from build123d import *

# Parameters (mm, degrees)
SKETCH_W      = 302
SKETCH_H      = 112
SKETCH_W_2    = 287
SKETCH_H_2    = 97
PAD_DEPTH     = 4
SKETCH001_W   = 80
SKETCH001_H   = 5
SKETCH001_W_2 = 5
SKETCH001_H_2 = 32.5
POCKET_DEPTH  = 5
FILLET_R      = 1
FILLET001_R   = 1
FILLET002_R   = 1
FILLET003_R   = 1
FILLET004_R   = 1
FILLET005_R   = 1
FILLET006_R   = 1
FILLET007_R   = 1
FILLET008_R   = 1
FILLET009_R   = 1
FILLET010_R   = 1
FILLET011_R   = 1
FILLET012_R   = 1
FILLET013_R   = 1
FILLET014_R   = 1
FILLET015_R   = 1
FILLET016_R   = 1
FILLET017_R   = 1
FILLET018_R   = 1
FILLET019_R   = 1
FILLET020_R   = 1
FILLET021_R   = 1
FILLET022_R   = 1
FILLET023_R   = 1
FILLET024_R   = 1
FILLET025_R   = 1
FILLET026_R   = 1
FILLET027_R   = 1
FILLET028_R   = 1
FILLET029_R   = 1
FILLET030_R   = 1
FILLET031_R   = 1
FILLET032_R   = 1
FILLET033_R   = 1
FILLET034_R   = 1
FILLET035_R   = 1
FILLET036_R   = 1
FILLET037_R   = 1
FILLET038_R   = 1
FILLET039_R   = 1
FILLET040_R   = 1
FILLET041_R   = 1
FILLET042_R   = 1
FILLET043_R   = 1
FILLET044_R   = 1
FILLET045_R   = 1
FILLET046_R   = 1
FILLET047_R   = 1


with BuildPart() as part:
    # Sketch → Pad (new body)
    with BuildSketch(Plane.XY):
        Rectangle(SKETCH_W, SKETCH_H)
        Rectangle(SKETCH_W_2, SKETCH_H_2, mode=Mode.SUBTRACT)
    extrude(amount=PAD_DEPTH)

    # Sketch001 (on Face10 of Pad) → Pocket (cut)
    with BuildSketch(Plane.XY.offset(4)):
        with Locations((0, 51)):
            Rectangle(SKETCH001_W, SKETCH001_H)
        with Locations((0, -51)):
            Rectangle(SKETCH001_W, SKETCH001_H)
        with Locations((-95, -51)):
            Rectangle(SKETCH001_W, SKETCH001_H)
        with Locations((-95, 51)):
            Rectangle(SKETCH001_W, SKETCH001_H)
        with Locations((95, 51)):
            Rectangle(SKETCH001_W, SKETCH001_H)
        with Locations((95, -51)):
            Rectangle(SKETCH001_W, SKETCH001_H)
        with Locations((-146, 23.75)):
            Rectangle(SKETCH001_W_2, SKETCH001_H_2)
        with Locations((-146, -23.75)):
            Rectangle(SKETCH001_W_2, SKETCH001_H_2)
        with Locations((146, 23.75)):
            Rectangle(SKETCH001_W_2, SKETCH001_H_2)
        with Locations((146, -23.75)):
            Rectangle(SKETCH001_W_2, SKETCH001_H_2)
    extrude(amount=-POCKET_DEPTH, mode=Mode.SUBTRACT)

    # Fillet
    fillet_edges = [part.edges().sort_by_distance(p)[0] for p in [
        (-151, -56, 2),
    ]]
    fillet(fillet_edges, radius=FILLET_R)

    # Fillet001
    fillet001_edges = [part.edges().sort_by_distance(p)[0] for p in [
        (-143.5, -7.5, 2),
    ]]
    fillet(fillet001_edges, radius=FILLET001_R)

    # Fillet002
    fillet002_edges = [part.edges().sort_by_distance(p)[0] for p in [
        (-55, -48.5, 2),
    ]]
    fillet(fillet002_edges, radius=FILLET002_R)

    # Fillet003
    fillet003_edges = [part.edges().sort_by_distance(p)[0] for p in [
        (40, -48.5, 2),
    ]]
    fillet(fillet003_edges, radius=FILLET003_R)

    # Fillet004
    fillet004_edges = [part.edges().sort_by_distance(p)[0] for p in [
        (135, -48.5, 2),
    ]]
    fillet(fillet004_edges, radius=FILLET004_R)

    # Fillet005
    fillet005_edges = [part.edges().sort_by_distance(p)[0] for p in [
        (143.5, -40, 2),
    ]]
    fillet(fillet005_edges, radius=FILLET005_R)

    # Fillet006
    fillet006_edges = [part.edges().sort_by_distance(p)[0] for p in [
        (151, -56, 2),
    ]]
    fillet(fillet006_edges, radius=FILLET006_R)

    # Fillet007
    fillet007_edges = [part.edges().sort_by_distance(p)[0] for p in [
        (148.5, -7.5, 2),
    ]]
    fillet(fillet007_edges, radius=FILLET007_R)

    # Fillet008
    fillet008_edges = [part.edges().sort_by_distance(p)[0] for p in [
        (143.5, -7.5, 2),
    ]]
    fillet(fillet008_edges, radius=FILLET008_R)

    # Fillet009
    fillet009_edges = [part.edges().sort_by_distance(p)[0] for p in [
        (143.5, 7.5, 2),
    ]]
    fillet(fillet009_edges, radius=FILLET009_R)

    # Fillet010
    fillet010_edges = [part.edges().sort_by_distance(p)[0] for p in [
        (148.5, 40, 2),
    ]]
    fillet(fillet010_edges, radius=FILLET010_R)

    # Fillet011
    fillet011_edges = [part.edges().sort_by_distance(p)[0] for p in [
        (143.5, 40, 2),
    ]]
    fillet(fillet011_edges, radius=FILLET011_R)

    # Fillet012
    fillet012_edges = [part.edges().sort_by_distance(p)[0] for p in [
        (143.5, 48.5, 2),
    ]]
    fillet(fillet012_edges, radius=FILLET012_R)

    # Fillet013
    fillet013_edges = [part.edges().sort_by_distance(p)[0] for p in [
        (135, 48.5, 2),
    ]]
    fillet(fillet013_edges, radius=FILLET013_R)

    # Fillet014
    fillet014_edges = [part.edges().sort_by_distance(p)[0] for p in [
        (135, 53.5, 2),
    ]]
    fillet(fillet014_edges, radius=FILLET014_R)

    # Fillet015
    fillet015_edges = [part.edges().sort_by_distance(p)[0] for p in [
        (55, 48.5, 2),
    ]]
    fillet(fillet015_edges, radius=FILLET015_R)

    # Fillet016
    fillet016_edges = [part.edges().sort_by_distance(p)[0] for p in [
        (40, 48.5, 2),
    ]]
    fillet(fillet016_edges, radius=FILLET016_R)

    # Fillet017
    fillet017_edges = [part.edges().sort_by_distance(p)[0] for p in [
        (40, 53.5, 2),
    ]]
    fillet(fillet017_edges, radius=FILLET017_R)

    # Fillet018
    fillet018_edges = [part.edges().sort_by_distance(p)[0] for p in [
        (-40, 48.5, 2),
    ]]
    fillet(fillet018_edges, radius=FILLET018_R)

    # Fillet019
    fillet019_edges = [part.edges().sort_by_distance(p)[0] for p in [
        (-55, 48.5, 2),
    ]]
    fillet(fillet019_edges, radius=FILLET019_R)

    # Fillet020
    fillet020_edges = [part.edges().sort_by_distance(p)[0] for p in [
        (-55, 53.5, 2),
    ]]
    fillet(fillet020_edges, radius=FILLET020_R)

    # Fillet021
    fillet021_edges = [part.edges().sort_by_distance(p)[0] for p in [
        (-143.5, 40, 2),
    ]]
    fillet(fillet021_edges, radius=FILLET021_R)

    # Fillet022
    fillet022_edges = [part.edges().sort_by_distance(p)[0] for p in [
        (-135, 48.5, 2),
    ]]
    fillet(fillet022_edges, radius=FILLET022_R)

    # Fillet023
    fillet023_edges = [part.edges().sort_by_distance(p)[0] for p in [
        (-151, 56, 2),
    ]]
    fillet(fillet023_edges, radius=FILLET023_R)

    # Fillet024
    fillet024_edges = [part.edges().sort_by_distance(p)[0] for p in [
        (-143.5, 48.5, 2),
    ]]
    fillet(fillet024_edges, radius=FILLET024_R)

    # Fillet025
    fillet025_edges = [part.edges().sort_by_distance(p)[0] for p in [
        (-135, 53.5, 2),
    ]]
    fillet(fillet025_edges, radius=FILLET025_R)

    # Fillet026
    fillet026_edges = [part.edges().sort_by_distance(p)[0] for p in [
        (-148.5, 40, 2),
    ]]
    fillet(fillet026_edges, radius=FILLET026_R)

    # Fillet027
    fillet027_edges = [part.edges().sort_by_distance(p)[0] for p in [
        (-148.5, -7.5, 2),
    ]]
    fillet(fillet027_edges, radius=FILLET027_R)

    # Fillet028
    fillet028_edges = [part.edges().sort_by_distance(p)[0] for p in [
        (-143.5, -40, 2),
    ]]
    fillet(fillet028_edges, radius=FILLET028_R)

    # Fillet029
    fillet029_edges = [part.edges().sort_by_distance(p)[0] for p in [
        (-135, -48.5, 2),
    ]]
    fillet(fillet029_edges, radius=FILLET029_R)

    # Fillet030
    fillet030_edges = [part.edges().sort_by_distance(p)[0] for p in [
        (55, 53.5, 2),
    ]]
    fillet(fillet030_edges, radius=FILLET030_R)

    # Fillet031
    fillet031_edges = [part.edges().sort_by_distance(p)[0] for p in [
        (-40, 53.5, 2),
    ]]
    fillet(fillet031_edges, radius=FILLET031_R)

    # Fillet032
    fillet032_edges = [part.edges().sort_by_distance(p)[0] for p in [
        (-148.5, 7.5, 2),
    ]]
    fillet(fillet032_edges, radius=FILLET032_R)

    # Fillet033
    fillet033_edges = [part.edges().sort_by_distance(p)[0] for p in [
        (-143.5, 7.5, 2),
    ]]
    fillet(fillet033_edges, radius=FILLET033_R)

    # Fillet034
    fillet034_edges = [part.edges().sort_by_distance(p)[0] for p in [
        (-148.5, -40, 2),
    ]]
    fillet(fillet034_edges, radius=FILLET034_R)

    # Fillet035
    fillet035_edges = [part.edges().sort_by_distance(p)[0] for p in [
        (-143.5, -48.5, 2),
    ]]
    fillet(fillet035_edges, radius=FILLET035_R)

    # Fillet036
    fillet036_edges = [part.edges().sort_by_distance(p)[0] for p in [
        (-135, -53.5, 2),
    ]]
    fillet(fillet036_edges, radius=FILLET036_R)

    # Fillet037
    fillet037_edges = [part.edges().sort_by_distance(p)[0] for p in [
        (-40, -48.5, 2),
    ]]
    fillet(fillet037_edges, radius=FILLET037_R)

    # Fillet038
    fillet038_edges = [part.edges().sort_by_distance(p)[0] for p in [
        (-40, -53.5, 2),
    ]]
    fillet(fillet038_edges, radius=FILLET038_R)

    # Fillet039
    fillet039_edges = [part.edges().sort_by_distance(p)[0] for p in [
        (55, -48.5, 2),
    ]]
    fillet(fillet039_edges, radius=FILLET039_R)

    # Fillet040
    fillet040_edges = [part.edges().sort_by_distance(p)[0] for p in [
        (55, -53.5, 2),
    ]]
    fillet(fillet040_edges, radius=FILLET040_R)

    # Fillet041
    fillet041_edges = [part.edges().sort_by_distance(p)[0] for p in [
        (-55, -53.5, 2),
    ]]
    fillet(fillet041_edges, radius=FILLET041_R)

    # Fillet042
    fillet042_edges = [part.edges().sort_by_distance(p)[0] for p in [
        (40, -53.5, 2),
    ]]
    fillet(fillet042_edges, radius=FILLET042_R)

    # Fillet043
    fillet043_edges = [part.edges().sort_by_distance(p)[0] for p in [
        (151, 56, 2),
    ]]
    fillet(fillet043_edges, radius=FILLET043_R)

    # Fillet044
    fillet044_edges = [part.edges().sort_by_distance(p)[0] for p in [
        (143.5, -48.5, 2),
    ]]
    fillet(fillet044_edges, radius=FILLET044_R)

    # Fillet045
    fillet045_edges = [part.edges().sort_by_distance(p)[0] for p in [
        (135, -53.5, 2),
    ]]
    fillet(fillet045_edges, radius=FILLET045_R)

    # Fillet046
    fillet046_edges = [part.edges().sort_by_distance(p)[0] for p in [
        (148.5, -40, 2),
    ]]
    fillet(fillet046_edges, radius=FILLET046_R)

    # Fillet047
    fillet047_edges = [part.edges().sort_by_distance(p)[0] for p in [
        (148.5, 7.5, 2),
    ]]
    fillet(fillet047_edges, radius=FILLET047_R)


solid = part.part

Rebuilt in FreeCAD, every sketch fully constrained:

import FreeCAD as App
import Part
import Sketcher

V = App.Vector
Q = App.Units.Quantity


def edges_at(feature, points):
    """Names of the edges that pass closest to the given points."""
    edges = feature.Shape.Edges
    near = lambda p: min(range(len(edges)), key=lambda i: edges[i].distToShape(Part.Vertex(*p))[0])
    return sorted({f"Edge{near(p) + 1}" for p in points})


def add_polygon(sketch, points):
    """Adds a closed chain of lines whose ends are joined by coincident constraints."""
    first, n = sketch.GeometryCount, len(points)
    for a, b in zip(points, points[1:] + points[:1]):
        sketch.addGeometry(Part.LineSegment(App.Vector(*a, 0), App.Vector(*b, 0)), False)
    for i in range(n):
        sketch.addConstraint(Sketcher.Constraint("Coincident", first + i, 2, first + (i + 1) % n, 1))

doc = App.newDocument("Part")
body = doc.addObject("PartDesign::Body", "Body")

# Sketch on XY plane
sketch1 = doc.addObject("Sketcher::SketchObject", "Sketch")
body.addObject(sketch1)
sketch1.AttachmentSupport = (doc.XY_Plane, [""])
sketch1.MapMode = "FlatFace"
add_polygon(sketch1, [(-151, 56), (-151, -56), (151, -56), (151, 56)])  # lines 0-3
add_polygon(sketch1, [(144, -48), (-144, -48), (-144, 48), (144, 48)])  # lines 4-7
sketch1.addConstraint([
    Sketcher.Constraint("Vertical", 0),
    Sketcher.Constraint("Horizontal", 1),
    Sketcher.Constraint("Vertical", 2),
    Sketcher.Constraint("Horizontal", 3),
    Sketcher.Constraint("Horizontal", 4),
    Sketcher.Constraint("Vertical", 5),
    Sketcher.Constraint("Horizontal", 6),
    Sketcher.Constraint("Vertical", 7),
    Sketcher.Constraint("Symmetric", 0, 2, 2, 2, -1, 1),
    Sketcher.Constraint("Symmetric", 4, 2, 6, 2, -1, 1),
    Sketcher.Constraint("DistanceX", 1, 1, 1, 2, Q("302 mm")),
    Sketcher.Constraint("DistanceX", 4, 2, 4, 1, Q("287 mm")),
    Sketcher.Constraint("DistanceY", 0, 2, 0, 1, Q("112 mm")),
    Sketcher.Constraint("DistanceY", 5, 1, 5, 2, Q("97 mm")),
])
pad1 = doc.addObject("PartDesign::Pad", "Pad")
body.addObject(pad1)
pad1.Profile = sketch1
pad1.Length = 4

# Sketch on XY plane
sketch2 = doc.addObject("Sketcher::SketchObject", "Sketch001")
body.addObject(sketch2)
sketch2.AttachmentSupport = (doc.XY_Plane, [""])
sketch2.MapMode = "FlatFace"
sketch2.AttachmentOffset = App.Placement(V(0, 0, 4), App.Rotation())
add_polygon(sketch2, [(-40, 54), (-40, 48), (40, 48), (40, 54)])  # lines 0-3
add_polygon(sketch2, [(-40, -48), (-40, -54), (40, -54), (40, -48)])  # lines 4-7
add_polygon(sketch2, [(-135, -48), (-135, -54), (-55, -54), (-55, -48)])  # lines 8-11
add_polygon(sketch2, [(-135, 54), (-135, 48), (-55, 48), (-55, 54)])  # lines 12-15
add_polygon(sketch2, [(55, 54), (55, 48), (135, 48), (135, 54)])  # lines 16-19
add_polygon(sketch2, [(55, -48), (55, -54), (135, -54), (135, -48)])  # lines 20-23
add_polygon(sketch2, [(-148, 40), (-148, 8), (-144, 8), (-144, 40)])  # lines 24-27
add_polygon(sketch2, [(-148, -8), (-148, -40), (-144, -40), (-144, -8)])  # lines 28-31
add_polygon(sketch2, [(144, 40), (144, 8), (148, 8), (148, 40)])  # lines 32-35
add_polygon(sketch2, [(144, -8), (144, -40), (148, -40), (148, -8)])  # lines 36-39
sketch2.addConstraint([
    Sketcher.Constraint("Vertical", 0),
    Sketcher.Constraint("Horizontal", 1),
    Sketcher.Constraint("Vertical", 2),
    Sketcher.Constraint("Horizontal", 3),
    Sketcher.Constraint("Vertical", 4),
    Sketcher.Constraint("Horizontal", 5),
    Sketcher.Constraint("Vertical", 6),
    Sketcher.Constraint("Horizontal", 7),
    Sketcher.Constraint("Vertical", 8),
    Sketcher.Constraint("Horizontal", 9),
    Sketcher.Constraint("Vertical", 10),
    Sketcher.Constraint("Horizontal", 11),
    Sketcher.Constraint("Vertical", 12),
    Sketcher.Constraint("Horizontal", 13),
    Sketcher.Constraint("Vertical", 14),
    Sketcher.Constraint("Horizontal", 15),
    Sketcher.Constraint("Vertical", 16),
    Sketcher.Constraint("Horizontal", 17),
    Sketcher.Constraint("Vertical", 18),
    Sketcher.Constraint("Horizontal", 19),
    Sketcher.Constraint("Vertical", 20),
    Sketcher.Constraint("Horizontal", 21),
    Sketcher.Constraint("Vertical", 22),
    Sketcher.Constraint("Horizontal", 23),
    Sketcher.Constraint("Vertical", 24),
    Sketcher.Constraint("Horizontal", 25),
    Sketcher.Constraint("Vertical", 26),
    Sketcher.Constraint("Horizontal", 27),
    Sketcher.Constraint("Vertical", 28),
    Sketcher.Constraint("Horizontal", 29),
    Sketcher.Constraint("Vertical", 30),
    Sketcher.Constraint("Horizontal", 31),
    Sketcher.Constraint("Vertical", 32),
    Sketcher.Constraint("Horizontal", 33),
    Sketcher.Constraint("Vertical", 34),
    Sketcher.Constraint("Horizontal", 35),
    Sketcher.Constraint("Vertical", 36),
    Sketcher.Constraint("Horizontal", 37),
    Sketcher.Constraint("Vertical", 38),
    Sketcher.Constraint("Horizontal", 39),
    Sketcher.Constraint("Symmetric", 2, 2, 4, 2, -1, 1),
    Sketcher.Constraint("Symmetric", 0, 2, 6, 2, -1, 1),
    Sketcher.Constraint("Symmetric", 10, 2, 16, 2, -1, 1),
    Sketcher.Constraint("Symmetric", 8, 2, 18, 2, -1, 1),
    Sketcher.Constraint("Symmetric", 14, 2, 20, 2, -1, 1),
    Sketcher.Constraint("Symmetric", 12, 2, 22, 2, -1, 1),
    Sketcher.Constraint("Symmetric", 30, 2, 32, 2, -1, 1),
    Sketcher.Constraint("Symmetric", 28, 2, 34, 2, -1, 1),
    Sketcher.Constraint("Symmetric", 26, 2, 36, 2, -1, 1),
    Sketcher.Constraint("Symmetric", 24, 2, 38, 2, -1, 1),
    Sketcher.Constraint("Symmetric", 13, 2, 16, 2, -2),
    Sketcher.Constraint("Symmetric", 15, 2, 18, 2, -2),
    Sketcher.Constraint("Symmetric", 25, 2, 32, 2, -2),
    Sketcher.Constraint("Symmetric", 27, 2, 34, 2, -2),
    Sketcher.Constraint("Horizontal", 5, 2, 8, 2),
    Sketcher.Constraint("Horizontal", 7, 2, 10, 2),
    Sketcher.Constraint("Vertical", 3, 2, 4, 2),
    Sketcher.Constraint("Equal", 7, 9),
    Sketcher.Constraint("Equal", 39, 0),
    Sketcher.Constraint("DistanceX", 1, 1, 1, 2, Q("80 mm")),
    Sketcher.Constraint("DistanceX", 25, 1, 25, 2, Q("5 mm")),
    Sketcher.Constraint("DistanceY", 24, 2, 24, 1, Q("32.5 mm")),
    Sketcher.Constraint("DistanceX", 8, 2, -1, 1, Q("135 mm")),
    Sketcher.Constraint("DistanceY", -1, 1, 26, 2, Q("40 mm")),
    Sketcher.Constraint("DistanceY", 4, 2, 0, 2, Q("102 mm")),
    Sketcher.Constraint("DistanceX", 24, 2, -1, 1, Q("148.5 mm")),
])
pocket1 = doc.addObject("PartDesign::Pocket", "Pocket")
body.addObject(pocket1)
pocket1.Profile = sketch2
pocket1.Length = 5
doc.recompute()

fillet = doc.addObject("PartDesign::Fillet", "Fillet")
body.addObject(fillet)
fillet.Base = (pocket1, edges_at(pocket1, [(-151, -56, 2)]))
fillet.Radius = 1
doc.recompute()

fillet2 = doc.addObject("PartDesign::Fillet", "Fillet001")
body.addObject(fillet2)
fillet2.Base = (fillet, edges_at(fillet, [(-143.5, -7.5, 2)]))
fillet2.Radius = 1
doc.recompute()

fillet3 = doc.addObject("PartDesign::Fillet", "Fillet002")
body.addObject(fillet3)
fillet3.Base = (fillet2, edges_at(fillet2, [(-55, -48.5, 2)]))
fillet3.Radius = 1
doc.recompute()

fillet4 = doc.addObject("PartDesign::Fillet", "Fillet003")
body.addObject(fillet4)
fillet4.Base = (fillet3, edges_at(fillet3, [(40, -48.5, 2)]))
fillet4.Radius = 1
doc.recompute()

fillet5 = doc.addObject("PartDesign::Fillet", "Fillet004")
body.addObject(fillet5)
fillet5.Base = (fillet4, edges_at(fillet4, [(135, -48.5, 2)]))
fillet5.Radius = 1
doc.recompute()

fillet6 = doc.addObject("PartDesign::Fillet", "Fillet005")
body.addObject(fillet6)
fillet6.Base = (fillet5, edges_at(fillet5, [(143.5, -40, 2)]))
fillet6.Radius = 1
doc.recompute()

fillet7 = doc.addObject("PartDesign::Fillet", "Fillet006")
body.addObject(fillet7)
fillet7.Base = (fillet6, edges_at(fillet6, [(151, -56, 2)]))
fillet7.Radius = 1
doc.recompute()

fillet8 = doc.addObject("PartDesign::Fillet", "Fillet007")
body.addObject(fillet8)
fillet8.Base = (fillet7, edges_at(fillet7, [(148.5, -7.5, 2)]))
fillet8.Radius = 1
doc.recompute()

fillet9 = doc.addObject("PartDesign::Fillet", "Fillet008")
body.addObject(fillet9)
fillet9.Base = (fillet8, edges_at(fillet8, [(143.5, -7.5, 2)]))
fillet9.Radius = 1
doc.recompute()

fillet10 = doc.addObject("PartDesign::Fillet", "Fillet009")
body.addObject(fillet10)
fillet10.Base = (fillet9, edges_at(fillet9, [(143.5, 7.5, 2)]))
fillet10.Radius = 1
doc.recompute()

fillet11 = doc.addObject("PartDesign::Fillet", "Fillet010")
body.addObject(fillet11)
fillet11.Base = (fillet10, edges_at(fillet10, [(148.5, 40, 2)]))
fillet11.Radius = 1
doc.recompute()

fillet12 = doc.addObject("PartDesign::Fillet", "Fillet011")
body.addObject(fillet12)
fillet12.Base = (fillet11, edges_at(fillet11, [(143.5, 40, 2)]))
fillet12.Radius = 1
doc.recompute()

fillet13 = doc.addObject("PartDesign::Fillet", "Fillet012")
body.addObject(fillet13)
fillet13.Base = (fillet12, edges_at(fillet12, [(143.5, 48.5, 2)]))
fillet13.Radius = 1
doc.recompute()

fillet14 = doc.addObject("PartDesign::Fillet", "Fillet013")
body.addObject(fillet14)
fillet14.Base = (fillet13, edges_at(fillet13, [(135, 48.5, 2)]))
fillet14.Radius = 1
doc.recompute()

fillet15 = doc.addObject("PartDesign::Fillet", "Fillet014")
body.addObject(fillet15)
fillet15.Base = (fillet14, edges_at(fillet14, [(135, 53.5, 2)]))
fillet15.Radius = 1
doc.recompute()

fillet16 = doc.addObject("PartDesign::Fillet", "Fillet015")
body.addObject(fillet16)
fillet16.Base = (fillet15, edges_at(fillet15, [(55, 48.5, 2)]))
fillet16.Radius = 1
doc.recompute()

fillet17 = doc.addObject("PartDesign::Fillet", "Fillet016")
body.addObject(fillet17)
fillet17.Base = (fillet16, edges_at(fillet16, [(40, 48.5, 2)]))
fillet17.Radius = 1
doc.recompute()

fillet18 = doc.addObject("PartDesign::Fillet", "Fillet017")
body.addObject(fillet18)
fillet18.Base = (fillet17, edges_at(fillet17, [(40, 53.5, 2)]))
fillet18.Radius = 1
doc.recompute()

fillet19 = doc.addObject("PartDesign::Fillet", "Fillet018")
body.addObject(fillet19)
fillet19.Base = (fillet18, edges_at(fillet18, [(-40, 48.5, 2)]))
fillet19.Radius = 1
doc.recompute()

fillet20 = doc.addObject("PartDesign::Fillet", "Fillet019")
body.addObject(fillet20)
fillet20.Base = (fillet19, edges_at(fillet19, [(-55, 48.5, 2)]))
fillet20.Radius = 1
doc.recompute()

fillet21 = doc.addObject("PartDesign::Fillet", "Fillet020")
body.addObject(fillet21)
fillet21.Base = (fillet20, edges_at(fillet20, [(-55, 53.5, 2)]))
fillet21.Radius = 1
doc.recompute()

fillet22 = doc.addObject("PartDesign::Fillet", "Fillet021")
body.addObject(fillet22)
fillet22.Base = (fillet21, edges_at(fillet21, [(-143.5, 40, 2)]))
fillet22.Radius = 1
doc.recompute()

fillet23 = doc.addObject("PartDesign::Fillet", "Fillet022")
body.addObject(fillet23)
fillet23.Base = (fillet22, edges_at(fillet22, [(-135, 48.5, 2)]))
fillet23.Radius = 1
doc.recompute()

fillet24 = doc.addObject("PartDesign::Fillet", "Fillet023")
body.addObject(fillet24)
fillet24.Base = (fillet23, edges_at(fillet23, [(-151, 56, 2)]))
fillet24.Radius = 1
doc.recompute()

fillet25 = doc.addObject("PartDesign::Fillet", "Fillet024")
body.addObject(fillet25)
fillet25.Base = (fillet24, edges_at(fillet24, [(-143.5, 48.5, 2)]))
fillet25.Radius = 1
doc.recompute()

fillet26 = doc.addObject("PartDesign::Fillet", "Fillet025")
body.addObject(fillet26)
fillet26.Base = (fillet25, edges_at(fillet25, [(-135, 53.5, 2)]))
fillet26.Radius = 1
doc.recompute()

fillet27 = doc.addObject("PartDesign::Fillet", "Fillet026")
body.addObject(fillet27)
fillet27.Base = (fillet26, edges_at(fillet26, [(-148.5, 40, 2)]))
fillet27.Radius = 1
doc.recompute()

fillet28 = doc.addObject("PartDesign::Fillet", "Fillet027")
body.addObject(fillet28)
fillet28.Base = (fillet27, edges_at(fillet27, [(-148.5, -7.5, 2)]))
fillet28.Radius = 1
doc.recompute()

fillet29 = doc.addObject("PartDesign::Fillet", "Fillet028")
body.addObject(fillet29)
fillet29.Base = (fillet28, edges_at(fillet28, [(-143.5, -40, 2)]))
fillet29.Radius = 1
doc.recompute()

fillet30 = doc.addObject("PartDesign::Fillet", "Fillet029")
body.addObject(fillet30)
fillet30.Base = (fillet29, edges_at(fillet29, [(-135, -48.5, 2)]))
fillet30.Radius = 1
doc.recompute()

fillet31 = doc.addObject("PartDesign::Fillet", "Fillet030")
body.addObject(fillet31)
fillet31.Base = (fillet30, edges_at(fillet30, [(55, 53.5, 2)]))
fillet31.Radius = 1
doc.recompute()

fillet32 = doc.addObject("PartDesign::Fillet", "Fillet031")
body.addObject(fillet32)
fillet32.Base = (fillet31, edges_at(fillet31, [(-40, 53.5, 2)]))
fillet32.Radius = 1
doc.recompute()

fillet33 = doc.addObject("PartDesign::Fillet", "Fillet032")
body.addObject(fillet33)
fillet33.Base = (fillet32, edges_at(fillet32, [(-148.5, 7.5, 2)]))
fillet33.Radius = 1
doc.recompute()

fillet34 = doc.addObject("PartDesign::Fillet", "Fillet033")
body.addObject(fillet34)
fillet34.Base = (fillet33, edges_at(fillet33, [(-143.5, 7.5, 2)]))
fillet34.Radius = 1
doc.recompute()

fillet35 = doc.addObject("PartDesign::Fillet", "Fillet034")
body.addObject(fillet35)
fillet35.Base = (fillet34, edges_at(fillet34, [(-148.5, -40, 2)]))
fillet35.Radius = 1
doc.recompute()

fillet36 = doc.addObject("PartDesign::Fillet", "Fillet035")
body.addObject(fillet36)
fillet36.Base = (fillet35, edges_at(fillet35, [(-143.5, -48.5, 2)]))
fillet36.Radius = 1
doc.recompute()

fillet37 = doc.addObject("PartDesign::Fillet", "Fillet036")
body.addObject(fillet37)
fillet37.Base = (fillet36, edges_at(fillet36, [(-135, -53.5, 2)]))
fillet37.Radius = 1
doc.recompute()

fillet38 = doc.addObject("PartDesign::Fillet", "Fillet037")
body.addObject(fillet38)
fillet38.Base = (fillet37, edges_at(fillet37, [(-40, -48.5, 2)]))
fillet38.Radius = 1
doc.recompute()

fillet39 = doc.addObject("PartDesign::Fillet", "Fillet038")
body.addObject(fillet39)
fillet39.Base = (fillet38, edges_at(fillet38, [(-40, -53.5, 2)]))
fillet39.Radius = 1
doc.recompute()

fillet40 = doc.addObject("PartDesign::Fillet", "Fillet039")
body.addObject(fillet40)
fillet40.Base = (fillet39, edges_at(fillet39, [(55, -48.5, 2)]))
fillet40.Radius = 1
doc.recompute()

fillet41 = doc.addObject("PartDesign::Fillet", "Fillet040")
body.addObject(fillet41)
fillet41.Base = (fillet40, edges_at(fillet40, [(55, -53.5, 2)]))
fillet41.Radius = 1
doc.recompute()

fillet42 = doc.addObject("PartDesign::Fillet", "Fillet041")
body.addObject(fillet42)
fillet42.Base = (fillet41, edges_at(fillet41, [(-55, -53.5, 2)]))
fillet42.Radius = 1
doc.recompute()

fillet43 = doc.addObject("PartDesign::Fillet", "Fillet042")
body.addObject(fillet43)
fillet43.Base = (fillet42, edges_at(fillet42, [(40, -53.5, 2)]))
fillet43.Radius = 1
doc.recompute()

fillet44 = doc.addObject("PartDesign::Fillet", "Fillet043")
body.addObject(fillet44)
fillet44.Base = (fillet43, edges_at(fillet43, [(151, 56, 2)]))
fillet44.Radius = 1
doc.recompute()

fillet45 = doc.addObject("PartDesign::Fillet", "Fillet044")
body.addObject(fillet45)
fillet45.Base = (fillet44, edges_at(fillet44, [(143.5, -48.5, 2)]))
fillet45.Radius = 1
doc.recompute()

fillet46 = doc.addObject("PartDesign::Fillet", "Fillet045")
body.addObject(fillet46)
fillet46.Base = (fillet45, edges_at(fillet45, [(135, -53.5, 2)]))
fillet46.Radius = 1
doc.recompute()

fillet47 = doc.addObject("PartDesign::Fillet", "Fillet046")
body.addObject(fillet47)
fillet47.Base = (fillet46, edges_at(fillet46, [(148.5, -40, 2)]))
fillet47.Radius = 1
doc.recompute()

fillet48 = doc.addObject("PartDesign::Fillet", "Fillet047")
body.addObject(fillet48)
fillet48.Base = (fillet47, edges_at(fillet47, [(148.5, 7.5, 2)]))
fillet48.Radius = 1

doc.recompute()
